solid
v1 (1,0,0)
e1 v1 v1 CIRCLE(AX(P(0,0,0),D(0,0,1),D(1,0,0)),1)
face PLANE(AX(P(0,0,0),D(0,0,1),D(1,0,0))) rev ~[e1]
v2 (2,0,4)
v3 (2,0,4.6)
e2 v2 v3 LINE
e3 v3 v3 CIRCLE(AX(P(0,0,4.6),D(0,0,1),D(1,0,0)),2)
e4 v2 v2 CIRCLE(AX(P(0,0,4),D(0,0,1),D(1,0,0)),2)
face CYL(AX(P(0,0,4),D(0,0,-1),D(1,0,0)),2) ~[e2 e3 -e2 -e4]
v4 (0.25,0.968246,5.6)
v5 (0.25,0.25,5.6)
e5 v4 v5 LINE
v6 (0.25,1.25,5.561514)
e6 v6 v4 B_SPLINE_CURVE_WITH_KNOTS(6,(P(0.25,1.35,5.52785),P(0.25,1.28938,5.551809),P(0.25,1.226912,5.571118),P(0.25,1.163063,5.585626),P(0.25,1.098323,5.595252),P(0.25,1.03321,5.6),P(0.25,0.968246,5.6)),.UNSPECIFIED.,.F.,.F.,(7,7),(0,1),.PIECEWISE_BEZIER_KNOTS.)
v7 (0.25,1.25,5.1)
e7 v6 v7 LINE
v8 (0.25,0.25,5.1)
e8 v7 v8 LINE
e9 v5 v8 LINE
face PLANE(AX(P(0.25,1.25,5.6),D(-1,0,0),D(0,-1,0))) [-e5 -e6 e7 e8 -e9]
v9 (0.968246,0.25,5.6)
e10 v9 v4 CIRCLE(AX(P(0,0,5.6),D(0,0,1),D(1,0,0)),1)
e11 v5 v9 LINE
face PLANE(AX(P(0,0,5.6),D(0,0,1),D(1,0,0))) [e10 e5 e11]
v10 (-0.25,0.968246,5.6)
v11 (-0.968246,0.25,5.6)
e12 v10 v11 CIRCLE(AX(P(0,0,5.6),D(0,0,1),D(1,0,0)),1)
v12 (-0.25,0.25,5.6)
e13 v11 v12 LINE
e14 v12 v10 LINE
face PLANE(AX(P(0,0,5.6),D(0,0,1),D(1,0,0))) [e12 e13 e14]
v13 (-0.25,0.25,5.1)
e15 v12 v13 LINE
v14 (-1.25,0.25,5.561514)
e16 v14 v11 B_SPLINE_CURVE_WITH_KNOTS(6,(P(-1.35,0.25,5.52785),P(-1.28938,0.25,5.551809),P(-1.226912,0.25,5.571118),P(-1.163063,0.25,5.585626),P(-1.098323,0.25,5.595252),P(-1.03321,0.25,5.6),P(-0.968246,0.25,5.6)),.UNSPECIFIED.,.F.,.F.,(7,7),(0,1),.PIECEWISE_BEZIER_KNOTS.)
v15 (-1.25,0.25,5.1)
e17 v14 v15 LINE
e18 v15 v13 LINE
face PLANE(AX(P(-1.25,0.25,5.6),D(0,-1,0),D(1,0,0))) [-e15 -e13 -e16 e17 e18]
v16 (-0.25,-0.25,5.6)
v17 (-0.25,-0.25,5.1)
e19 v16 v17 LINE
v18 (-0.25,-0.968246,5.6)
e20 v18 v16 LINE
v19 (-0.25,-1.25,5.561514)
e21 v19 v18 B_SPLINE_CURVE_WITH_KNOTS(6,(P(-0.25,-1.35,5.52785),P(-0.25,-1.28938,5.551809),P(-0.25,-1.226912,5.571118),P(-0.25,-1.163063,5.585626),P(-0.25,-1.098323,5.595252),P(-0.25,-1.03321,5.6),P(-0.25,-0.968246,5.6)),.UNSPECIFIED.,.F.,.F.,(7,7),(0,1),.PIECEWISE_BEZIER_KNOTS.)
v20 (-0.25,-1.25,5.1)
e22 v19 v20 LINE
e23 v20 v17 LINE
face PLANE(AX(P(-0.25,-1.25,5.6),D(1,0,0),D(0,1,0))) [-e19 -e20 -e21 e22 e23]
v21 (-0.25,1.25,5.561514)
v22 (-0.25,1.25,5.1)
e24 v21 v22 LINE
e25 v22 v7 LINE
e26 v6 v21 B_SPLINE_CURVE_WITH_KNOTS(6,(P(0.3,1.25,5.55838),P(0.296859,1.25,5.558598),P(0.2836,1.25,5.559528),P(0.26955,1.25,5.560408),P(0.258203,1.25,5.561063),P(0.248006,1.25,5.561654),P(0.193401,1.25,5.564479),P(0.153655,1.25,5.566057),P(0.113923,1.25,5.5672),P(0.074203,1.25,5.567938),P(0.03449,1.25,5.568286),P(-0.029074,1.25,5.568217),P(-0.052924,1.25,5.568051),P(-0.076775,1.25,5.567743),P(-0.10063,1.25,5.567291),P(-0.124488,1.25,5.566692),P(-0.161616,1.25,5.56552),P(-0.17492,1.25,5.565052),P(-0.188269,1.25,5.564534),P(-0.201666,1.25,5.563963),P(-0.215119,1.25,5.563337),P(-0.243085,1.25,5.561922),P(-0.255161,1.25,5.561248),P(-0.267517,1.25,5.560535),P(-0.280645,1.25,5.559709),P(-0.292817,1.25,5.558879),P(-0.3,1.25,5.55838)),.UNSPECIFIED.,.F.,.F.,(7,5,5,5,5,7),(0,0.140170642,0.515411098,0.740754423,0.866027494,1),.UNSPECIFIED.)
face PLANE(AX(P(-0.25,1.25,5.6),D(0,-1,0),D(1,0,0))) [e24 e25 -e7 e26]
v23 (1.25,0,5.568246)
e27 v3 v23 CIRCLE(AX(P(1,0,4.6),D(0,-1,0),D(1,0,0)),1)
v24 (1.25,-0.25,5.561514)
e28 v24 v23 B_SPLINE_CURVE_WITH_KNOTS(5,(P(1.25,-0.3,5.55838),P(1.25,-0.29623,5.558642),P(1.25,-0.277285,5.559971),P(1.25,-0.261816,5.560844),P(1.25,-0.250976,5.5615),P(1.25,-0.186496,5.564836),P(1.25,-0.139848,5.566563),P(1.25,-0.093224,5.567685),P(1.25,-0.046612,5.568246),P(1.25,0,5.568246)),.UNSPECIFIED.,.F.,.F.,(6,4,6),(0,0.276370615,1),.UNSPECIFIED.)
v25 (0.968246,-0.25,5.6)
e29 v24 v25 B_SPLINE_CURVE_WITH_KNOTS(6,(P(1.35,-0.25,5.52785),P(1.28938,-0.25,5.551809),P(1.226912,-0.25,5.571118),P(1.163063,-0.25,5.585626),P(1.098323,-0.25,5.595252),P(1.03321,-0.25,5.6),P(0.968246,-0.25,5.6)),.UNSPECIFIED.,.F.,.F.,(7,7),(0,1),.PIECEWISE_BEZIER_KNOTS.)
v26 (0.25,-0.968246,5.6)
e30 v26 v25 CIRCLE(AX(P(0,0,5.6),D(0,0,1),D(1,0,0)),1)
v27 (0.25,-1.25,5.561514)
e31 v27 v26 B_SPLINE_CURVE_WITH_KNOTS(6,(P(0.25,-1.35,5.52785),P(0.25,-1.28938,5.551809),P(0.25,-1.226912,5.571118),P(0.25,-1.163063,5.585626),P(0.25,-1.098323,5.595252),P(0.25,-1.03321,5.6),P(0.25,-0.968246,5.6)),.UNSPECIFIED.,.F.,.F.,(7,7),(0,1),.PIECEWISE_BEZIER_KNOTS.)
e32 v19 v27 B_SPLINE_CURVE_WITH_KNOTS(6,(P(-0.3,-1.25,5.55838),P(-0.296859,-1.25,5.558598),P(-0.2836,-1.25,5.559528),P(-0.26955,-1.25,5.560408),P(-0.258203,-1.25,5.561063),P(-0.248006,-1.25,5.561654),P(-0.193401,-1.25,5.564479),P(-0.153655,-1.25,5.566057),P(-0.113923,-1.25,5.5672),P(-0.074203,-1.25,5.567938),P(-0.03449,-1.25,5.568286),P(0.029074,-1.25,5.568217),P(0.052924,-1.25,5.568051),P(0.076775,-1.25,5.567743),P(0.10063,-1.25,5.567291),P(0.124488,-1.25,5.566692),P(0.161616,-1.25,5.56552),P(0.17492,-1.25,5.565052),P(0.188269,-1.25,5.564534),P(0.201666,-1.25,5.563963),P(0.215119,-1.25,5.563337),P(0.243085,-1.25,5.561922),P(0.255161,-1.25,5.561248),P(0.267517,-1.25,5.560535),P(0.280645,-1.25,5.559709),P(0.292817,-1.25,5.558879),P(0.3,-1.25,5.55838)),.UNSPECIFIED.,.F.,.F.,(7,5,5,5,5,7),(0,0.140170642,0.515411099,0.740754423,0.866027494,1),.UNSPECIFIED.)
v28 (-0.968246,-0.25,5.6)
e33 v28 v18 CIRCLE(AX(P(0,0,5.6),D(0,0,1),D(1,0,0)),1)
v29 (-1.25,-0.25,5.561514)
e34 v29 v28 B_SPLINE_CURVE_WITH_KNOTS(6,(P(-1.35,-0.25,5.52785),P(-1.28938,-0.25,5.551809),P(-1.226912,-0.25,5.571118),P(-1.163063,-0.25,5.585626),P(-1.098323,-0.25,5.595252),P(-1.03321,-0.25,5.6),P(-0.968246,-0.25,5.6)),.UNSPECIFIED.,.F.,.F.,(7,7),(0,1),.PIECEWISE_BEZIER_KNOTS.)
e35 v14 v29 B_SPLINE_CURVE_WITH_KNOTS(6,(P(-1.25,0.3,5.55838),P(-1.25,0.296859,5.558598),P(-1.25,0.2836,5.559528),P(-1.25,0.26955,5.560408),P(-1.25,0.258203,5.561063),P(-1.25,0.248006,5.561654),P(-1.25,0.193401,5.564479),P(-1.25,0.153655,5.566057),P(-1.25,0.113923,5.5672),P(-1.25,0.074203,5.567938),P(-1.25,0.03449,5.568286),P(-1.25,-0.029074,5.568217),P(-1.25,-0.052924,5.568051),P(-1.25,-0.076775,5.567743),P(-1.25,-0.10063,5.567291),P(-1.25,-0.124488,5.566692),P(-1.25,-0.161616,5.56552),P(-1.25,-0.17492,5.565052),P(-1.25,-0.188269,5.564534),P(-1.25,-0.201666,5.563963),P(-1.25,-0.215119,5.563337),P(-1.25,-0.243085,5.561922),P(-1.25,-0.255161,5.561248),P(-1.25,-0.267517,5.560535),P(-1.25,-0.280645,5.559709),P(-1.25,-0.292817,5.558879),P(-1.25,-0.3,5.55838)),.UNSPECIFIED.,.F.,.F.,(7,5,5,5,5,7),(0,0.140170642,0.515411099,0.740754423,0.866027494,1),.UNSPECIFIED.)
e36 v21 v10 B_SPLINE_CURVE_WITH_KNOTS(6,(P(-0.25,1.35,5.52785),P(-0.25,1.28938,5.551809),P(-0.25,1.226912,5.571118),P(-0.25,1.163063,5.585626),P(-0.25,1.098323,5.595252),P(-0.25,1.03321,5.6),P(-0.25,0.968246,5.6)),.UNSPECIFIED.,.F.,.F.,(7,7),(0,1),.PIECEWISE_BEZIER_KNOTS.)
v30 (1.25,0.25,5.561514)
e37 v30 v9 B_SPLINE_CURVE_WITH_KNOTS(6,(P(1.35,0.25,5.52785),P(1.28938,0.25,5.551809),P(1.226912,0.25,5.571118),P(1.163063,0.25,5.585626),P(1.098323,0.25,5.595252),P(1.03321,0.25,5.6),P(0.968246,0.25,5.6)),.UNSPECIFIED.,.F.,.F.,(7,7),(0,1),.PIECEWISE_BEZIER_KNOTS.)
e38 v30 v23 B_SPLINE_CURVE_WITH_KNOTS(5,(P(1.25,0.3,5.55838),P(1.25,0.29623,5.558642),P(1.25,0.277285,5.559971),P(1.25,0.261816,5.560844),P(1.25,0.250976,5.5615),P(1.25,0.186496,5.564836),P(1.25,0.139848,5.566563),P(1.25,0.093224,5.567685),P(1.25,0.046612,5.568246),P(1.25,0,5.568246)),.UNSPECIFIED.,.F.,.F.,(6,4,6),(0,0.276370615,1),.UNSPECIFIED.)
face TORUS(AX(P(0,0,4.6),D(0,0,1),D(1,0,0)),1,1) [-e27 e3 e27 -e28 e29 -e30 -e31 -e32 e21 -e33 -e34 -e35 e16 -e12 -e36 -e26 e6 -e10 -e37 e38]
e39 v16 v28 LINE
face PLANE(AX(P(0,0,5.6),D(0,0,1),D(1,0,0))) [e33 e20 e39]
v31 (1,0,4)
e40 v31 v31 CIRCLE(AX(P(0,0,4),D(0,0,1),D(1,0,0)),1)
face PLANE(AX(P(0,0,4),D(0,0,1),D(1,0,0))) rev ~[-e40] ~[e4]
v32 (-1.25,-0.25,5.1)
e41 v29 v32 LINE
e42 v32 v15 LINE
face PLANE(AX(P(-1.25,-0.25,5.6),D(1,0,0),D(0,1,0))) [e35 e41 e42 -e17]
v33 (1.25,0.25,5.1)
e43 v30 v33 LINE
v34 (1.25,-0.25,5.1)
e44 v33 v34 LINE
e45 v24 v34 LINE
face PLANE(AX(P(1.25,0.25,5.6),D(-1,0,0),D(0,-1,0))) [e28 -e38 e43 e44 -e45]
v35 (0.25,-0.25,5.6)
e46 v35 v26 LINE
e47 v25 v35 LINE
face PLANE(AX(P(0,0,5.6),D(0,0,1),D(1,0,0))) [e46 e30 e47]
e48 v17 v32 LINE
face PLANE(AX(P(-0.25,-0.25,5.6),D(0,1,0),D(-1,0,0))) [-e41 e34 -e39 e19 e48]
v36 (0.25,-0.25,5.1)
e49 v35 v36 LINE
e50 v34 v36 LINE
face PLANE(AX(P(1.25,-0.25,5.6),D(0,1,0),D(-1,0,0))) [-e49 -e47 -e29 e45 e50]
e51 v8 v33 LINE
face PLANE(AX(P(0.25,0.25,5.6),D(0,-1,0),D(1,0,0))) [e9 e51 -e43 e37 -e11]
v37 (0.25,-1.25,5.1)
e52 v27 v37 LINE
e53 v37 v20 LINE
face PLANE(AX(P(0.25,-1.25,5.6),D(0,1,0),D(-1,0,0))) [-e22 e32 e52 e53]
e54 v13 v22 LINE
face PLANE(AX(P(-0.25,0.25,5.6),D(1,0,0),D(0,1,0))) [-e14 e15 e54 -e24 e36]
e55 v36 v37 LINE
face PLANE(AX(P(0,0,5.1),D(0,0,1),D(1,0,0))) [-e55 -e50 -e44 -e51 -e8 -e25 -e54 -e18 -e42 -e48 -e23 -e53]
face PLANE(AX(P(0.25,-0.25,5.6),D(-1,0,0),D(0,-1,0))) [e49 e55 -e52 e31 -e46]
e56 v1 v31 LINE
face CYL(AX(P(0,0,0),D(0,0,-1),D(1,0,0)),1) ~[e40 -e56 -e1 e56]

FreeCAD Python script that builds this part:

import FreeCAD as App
import Part
import Sketcher
from FreeCAD import Vector


def edges_at(feature, points):
    """Names of the edges that pass closest to the given points."""
    edges = feature.Shape.Edges
    near = lambda p: min(range(len(edges)), key=lambda i: edges[i].distToShape(Part.Vertex(*p))[0])
    return sorted({f"Edge{near(p) + 1}" for p in points})


def add_polygon(sketch, points):
    """Adds a closed chain of lines whose ends are joined by coincident constraints."""
    first, n = sketch.GeometryCount, len(points)
    for a, b in zip(points, points[1:] + points[:1]):
        sketch.addGeometry(Part.LineSegment(App.Vector(*a, 0), App.Vector(*b, 0)), False)
    for i in range(n):
        sketch.addConstraint(Sketcher.Constraint("Coincident", first + i, 2, first + (i + 1) % n, 1))

doc = App.newDocument("Part")
body = doc.addObject("PartDesign::Body", "Body")

sketch1 = body.newObject("Sketcher::SketchObject", "Sketch")
sketch1.AttachmentSupport = (doc.getObject("XY_Plane"), [""])
sketch1.MapMode = "FlatFace"
sketch1.addGeometry(Part.Circle(Vector(0, 0, 0), Vector(0, 0, 1), 1), False)
sketch1.addConstraint(Sketcher.Constraint("Coincident", 0, 3, -1, 1))
sketch1.addConstraint(Sketcher.Constraint("Diameter", 0, 2.0))
pad1 = body.newObject("PartDesign::Pad", "Pad")
pad1.Profile = sketch1
pad1.Length = 4

sketch2 = body.newObject("Sketcher::SketchObject", "Sketch001")
sketch2.AttachmentSupport = (doc.getObject("XY_Plane"), [""])
sketch2.MapMode = "FlatFace"
sketch2.AttachmentOffset = App.Placement(Vector(0, 0, 4), App.Rotation())
sketch2.addGeometry(Part.Circle(Vector(0, 0, 0), Vector(0, 0, 1), 2), False)
sketch2.addConstraint(Sketcher.Constraint("Coincident", 0, 3, -1, 1))
sketch2.addConstraint(Sketcher.Constraint("Diameter", 0, 4.0))
pad2 = body.newObject("PartDesign::Pad", "Pad001")
pad2.Profile = sketch2
pad2.Length = 1.6
doc.recompute()

fillet = body.newObject("PartDesign::Fillet", "Fillet")
fillet.Base = (pad2, edges_at(pad2, [(-2, 0, 5.6)]))
fillet.Radius = 1

sketch3 = body.newObject("Sketcher::SketchObject", "Sketch002")
sketch3.AttachmentSupport = (doc.getObject("XY_Plane"), [""])
sketch3.MapMode = "FlatFace"
sketch3.AttachmentOffset = App.Placement(Vector(0, 0, 5.6), App.Rotation())
add_polygon(sketch3, [(0.25, 1.25), (-0.25, 1.25), (-0.25, 0.25), (-1.25, 0.25), (-1.25, -0.25), (-0.25, -0.25), (-0.25, -1.25), (0.25, -1.25), (0.25, -0.25), (1.25, -0.25), (1.25, 0.25), (0.25, 0.25)])
sketch3.addConstraint(Sketcher.Constraint("Horizontal", 0))
sketch3.addConstraint(Sketcher.Constraint("Vertical", 1))
sketch3.addConstraint(Sketcher.Constraint("Horizontal", 2))
sketch3.addConstraint(Sketcher.Constraint("Vertical", 3))
sketch3.addConstraint(Sketcher.Constraint("Horizontal", 4))
sketch3.addConstraint(Sketcher.Constraint("Vertical", 5))
sketch3.addConstraint(Sketcher.Constraint("Horizontal", 6))
sketch3.addConstraint(Sketcher.Constraint("Vertical", 7))
sketch3.addConstraint(Sketcher.Constraint("Horizontal", 8))
sketch3.addConstraint(Sketcher.Constraint("Vertical", 9))
sketch3.addConstraint(Sketcher.Constraint("Horizontal", 10))
sketch3.addConstraint(Sketcher.Constraint("Vertical", 11))
sketch3.addConstraint(Sketcher.Constraint("Symmetric", 0, 2, 6, 2, -1, 1))
sketch3.addConstraint(Sketcher.Constraint("Symmetric", 2, 2, 8, 2, -1, 1))
sketch3.addConstraint(Sketcher.Constraint("Symmetric", 4, 2, 10, 2, -1, 1))
sketch3.addConstraint(Sketcher.Constraint("Symmetric", 4, 2, 7, 2, -2))
sketch3.addConstraint(Sketcher.Constraint("Equal", 10, 1))
sketch3.addConstraint(Sketcher.Constraint("Equal", 6, 3))
sketch3.addConstraint(Sketcher.Constraint("DistanceX", 0, 2, 0, 1, 0.5))
sketch3.addConstraint(Sketcher.Constraint("DistanceY", 5, 2, 0, 2, 2.5))
pocket1 = body.newObject("PartDesign::Pocket", "Pocket")
pocket1.Profile = sketch3
pocket1.Length = 0.5

doc.recompute()
